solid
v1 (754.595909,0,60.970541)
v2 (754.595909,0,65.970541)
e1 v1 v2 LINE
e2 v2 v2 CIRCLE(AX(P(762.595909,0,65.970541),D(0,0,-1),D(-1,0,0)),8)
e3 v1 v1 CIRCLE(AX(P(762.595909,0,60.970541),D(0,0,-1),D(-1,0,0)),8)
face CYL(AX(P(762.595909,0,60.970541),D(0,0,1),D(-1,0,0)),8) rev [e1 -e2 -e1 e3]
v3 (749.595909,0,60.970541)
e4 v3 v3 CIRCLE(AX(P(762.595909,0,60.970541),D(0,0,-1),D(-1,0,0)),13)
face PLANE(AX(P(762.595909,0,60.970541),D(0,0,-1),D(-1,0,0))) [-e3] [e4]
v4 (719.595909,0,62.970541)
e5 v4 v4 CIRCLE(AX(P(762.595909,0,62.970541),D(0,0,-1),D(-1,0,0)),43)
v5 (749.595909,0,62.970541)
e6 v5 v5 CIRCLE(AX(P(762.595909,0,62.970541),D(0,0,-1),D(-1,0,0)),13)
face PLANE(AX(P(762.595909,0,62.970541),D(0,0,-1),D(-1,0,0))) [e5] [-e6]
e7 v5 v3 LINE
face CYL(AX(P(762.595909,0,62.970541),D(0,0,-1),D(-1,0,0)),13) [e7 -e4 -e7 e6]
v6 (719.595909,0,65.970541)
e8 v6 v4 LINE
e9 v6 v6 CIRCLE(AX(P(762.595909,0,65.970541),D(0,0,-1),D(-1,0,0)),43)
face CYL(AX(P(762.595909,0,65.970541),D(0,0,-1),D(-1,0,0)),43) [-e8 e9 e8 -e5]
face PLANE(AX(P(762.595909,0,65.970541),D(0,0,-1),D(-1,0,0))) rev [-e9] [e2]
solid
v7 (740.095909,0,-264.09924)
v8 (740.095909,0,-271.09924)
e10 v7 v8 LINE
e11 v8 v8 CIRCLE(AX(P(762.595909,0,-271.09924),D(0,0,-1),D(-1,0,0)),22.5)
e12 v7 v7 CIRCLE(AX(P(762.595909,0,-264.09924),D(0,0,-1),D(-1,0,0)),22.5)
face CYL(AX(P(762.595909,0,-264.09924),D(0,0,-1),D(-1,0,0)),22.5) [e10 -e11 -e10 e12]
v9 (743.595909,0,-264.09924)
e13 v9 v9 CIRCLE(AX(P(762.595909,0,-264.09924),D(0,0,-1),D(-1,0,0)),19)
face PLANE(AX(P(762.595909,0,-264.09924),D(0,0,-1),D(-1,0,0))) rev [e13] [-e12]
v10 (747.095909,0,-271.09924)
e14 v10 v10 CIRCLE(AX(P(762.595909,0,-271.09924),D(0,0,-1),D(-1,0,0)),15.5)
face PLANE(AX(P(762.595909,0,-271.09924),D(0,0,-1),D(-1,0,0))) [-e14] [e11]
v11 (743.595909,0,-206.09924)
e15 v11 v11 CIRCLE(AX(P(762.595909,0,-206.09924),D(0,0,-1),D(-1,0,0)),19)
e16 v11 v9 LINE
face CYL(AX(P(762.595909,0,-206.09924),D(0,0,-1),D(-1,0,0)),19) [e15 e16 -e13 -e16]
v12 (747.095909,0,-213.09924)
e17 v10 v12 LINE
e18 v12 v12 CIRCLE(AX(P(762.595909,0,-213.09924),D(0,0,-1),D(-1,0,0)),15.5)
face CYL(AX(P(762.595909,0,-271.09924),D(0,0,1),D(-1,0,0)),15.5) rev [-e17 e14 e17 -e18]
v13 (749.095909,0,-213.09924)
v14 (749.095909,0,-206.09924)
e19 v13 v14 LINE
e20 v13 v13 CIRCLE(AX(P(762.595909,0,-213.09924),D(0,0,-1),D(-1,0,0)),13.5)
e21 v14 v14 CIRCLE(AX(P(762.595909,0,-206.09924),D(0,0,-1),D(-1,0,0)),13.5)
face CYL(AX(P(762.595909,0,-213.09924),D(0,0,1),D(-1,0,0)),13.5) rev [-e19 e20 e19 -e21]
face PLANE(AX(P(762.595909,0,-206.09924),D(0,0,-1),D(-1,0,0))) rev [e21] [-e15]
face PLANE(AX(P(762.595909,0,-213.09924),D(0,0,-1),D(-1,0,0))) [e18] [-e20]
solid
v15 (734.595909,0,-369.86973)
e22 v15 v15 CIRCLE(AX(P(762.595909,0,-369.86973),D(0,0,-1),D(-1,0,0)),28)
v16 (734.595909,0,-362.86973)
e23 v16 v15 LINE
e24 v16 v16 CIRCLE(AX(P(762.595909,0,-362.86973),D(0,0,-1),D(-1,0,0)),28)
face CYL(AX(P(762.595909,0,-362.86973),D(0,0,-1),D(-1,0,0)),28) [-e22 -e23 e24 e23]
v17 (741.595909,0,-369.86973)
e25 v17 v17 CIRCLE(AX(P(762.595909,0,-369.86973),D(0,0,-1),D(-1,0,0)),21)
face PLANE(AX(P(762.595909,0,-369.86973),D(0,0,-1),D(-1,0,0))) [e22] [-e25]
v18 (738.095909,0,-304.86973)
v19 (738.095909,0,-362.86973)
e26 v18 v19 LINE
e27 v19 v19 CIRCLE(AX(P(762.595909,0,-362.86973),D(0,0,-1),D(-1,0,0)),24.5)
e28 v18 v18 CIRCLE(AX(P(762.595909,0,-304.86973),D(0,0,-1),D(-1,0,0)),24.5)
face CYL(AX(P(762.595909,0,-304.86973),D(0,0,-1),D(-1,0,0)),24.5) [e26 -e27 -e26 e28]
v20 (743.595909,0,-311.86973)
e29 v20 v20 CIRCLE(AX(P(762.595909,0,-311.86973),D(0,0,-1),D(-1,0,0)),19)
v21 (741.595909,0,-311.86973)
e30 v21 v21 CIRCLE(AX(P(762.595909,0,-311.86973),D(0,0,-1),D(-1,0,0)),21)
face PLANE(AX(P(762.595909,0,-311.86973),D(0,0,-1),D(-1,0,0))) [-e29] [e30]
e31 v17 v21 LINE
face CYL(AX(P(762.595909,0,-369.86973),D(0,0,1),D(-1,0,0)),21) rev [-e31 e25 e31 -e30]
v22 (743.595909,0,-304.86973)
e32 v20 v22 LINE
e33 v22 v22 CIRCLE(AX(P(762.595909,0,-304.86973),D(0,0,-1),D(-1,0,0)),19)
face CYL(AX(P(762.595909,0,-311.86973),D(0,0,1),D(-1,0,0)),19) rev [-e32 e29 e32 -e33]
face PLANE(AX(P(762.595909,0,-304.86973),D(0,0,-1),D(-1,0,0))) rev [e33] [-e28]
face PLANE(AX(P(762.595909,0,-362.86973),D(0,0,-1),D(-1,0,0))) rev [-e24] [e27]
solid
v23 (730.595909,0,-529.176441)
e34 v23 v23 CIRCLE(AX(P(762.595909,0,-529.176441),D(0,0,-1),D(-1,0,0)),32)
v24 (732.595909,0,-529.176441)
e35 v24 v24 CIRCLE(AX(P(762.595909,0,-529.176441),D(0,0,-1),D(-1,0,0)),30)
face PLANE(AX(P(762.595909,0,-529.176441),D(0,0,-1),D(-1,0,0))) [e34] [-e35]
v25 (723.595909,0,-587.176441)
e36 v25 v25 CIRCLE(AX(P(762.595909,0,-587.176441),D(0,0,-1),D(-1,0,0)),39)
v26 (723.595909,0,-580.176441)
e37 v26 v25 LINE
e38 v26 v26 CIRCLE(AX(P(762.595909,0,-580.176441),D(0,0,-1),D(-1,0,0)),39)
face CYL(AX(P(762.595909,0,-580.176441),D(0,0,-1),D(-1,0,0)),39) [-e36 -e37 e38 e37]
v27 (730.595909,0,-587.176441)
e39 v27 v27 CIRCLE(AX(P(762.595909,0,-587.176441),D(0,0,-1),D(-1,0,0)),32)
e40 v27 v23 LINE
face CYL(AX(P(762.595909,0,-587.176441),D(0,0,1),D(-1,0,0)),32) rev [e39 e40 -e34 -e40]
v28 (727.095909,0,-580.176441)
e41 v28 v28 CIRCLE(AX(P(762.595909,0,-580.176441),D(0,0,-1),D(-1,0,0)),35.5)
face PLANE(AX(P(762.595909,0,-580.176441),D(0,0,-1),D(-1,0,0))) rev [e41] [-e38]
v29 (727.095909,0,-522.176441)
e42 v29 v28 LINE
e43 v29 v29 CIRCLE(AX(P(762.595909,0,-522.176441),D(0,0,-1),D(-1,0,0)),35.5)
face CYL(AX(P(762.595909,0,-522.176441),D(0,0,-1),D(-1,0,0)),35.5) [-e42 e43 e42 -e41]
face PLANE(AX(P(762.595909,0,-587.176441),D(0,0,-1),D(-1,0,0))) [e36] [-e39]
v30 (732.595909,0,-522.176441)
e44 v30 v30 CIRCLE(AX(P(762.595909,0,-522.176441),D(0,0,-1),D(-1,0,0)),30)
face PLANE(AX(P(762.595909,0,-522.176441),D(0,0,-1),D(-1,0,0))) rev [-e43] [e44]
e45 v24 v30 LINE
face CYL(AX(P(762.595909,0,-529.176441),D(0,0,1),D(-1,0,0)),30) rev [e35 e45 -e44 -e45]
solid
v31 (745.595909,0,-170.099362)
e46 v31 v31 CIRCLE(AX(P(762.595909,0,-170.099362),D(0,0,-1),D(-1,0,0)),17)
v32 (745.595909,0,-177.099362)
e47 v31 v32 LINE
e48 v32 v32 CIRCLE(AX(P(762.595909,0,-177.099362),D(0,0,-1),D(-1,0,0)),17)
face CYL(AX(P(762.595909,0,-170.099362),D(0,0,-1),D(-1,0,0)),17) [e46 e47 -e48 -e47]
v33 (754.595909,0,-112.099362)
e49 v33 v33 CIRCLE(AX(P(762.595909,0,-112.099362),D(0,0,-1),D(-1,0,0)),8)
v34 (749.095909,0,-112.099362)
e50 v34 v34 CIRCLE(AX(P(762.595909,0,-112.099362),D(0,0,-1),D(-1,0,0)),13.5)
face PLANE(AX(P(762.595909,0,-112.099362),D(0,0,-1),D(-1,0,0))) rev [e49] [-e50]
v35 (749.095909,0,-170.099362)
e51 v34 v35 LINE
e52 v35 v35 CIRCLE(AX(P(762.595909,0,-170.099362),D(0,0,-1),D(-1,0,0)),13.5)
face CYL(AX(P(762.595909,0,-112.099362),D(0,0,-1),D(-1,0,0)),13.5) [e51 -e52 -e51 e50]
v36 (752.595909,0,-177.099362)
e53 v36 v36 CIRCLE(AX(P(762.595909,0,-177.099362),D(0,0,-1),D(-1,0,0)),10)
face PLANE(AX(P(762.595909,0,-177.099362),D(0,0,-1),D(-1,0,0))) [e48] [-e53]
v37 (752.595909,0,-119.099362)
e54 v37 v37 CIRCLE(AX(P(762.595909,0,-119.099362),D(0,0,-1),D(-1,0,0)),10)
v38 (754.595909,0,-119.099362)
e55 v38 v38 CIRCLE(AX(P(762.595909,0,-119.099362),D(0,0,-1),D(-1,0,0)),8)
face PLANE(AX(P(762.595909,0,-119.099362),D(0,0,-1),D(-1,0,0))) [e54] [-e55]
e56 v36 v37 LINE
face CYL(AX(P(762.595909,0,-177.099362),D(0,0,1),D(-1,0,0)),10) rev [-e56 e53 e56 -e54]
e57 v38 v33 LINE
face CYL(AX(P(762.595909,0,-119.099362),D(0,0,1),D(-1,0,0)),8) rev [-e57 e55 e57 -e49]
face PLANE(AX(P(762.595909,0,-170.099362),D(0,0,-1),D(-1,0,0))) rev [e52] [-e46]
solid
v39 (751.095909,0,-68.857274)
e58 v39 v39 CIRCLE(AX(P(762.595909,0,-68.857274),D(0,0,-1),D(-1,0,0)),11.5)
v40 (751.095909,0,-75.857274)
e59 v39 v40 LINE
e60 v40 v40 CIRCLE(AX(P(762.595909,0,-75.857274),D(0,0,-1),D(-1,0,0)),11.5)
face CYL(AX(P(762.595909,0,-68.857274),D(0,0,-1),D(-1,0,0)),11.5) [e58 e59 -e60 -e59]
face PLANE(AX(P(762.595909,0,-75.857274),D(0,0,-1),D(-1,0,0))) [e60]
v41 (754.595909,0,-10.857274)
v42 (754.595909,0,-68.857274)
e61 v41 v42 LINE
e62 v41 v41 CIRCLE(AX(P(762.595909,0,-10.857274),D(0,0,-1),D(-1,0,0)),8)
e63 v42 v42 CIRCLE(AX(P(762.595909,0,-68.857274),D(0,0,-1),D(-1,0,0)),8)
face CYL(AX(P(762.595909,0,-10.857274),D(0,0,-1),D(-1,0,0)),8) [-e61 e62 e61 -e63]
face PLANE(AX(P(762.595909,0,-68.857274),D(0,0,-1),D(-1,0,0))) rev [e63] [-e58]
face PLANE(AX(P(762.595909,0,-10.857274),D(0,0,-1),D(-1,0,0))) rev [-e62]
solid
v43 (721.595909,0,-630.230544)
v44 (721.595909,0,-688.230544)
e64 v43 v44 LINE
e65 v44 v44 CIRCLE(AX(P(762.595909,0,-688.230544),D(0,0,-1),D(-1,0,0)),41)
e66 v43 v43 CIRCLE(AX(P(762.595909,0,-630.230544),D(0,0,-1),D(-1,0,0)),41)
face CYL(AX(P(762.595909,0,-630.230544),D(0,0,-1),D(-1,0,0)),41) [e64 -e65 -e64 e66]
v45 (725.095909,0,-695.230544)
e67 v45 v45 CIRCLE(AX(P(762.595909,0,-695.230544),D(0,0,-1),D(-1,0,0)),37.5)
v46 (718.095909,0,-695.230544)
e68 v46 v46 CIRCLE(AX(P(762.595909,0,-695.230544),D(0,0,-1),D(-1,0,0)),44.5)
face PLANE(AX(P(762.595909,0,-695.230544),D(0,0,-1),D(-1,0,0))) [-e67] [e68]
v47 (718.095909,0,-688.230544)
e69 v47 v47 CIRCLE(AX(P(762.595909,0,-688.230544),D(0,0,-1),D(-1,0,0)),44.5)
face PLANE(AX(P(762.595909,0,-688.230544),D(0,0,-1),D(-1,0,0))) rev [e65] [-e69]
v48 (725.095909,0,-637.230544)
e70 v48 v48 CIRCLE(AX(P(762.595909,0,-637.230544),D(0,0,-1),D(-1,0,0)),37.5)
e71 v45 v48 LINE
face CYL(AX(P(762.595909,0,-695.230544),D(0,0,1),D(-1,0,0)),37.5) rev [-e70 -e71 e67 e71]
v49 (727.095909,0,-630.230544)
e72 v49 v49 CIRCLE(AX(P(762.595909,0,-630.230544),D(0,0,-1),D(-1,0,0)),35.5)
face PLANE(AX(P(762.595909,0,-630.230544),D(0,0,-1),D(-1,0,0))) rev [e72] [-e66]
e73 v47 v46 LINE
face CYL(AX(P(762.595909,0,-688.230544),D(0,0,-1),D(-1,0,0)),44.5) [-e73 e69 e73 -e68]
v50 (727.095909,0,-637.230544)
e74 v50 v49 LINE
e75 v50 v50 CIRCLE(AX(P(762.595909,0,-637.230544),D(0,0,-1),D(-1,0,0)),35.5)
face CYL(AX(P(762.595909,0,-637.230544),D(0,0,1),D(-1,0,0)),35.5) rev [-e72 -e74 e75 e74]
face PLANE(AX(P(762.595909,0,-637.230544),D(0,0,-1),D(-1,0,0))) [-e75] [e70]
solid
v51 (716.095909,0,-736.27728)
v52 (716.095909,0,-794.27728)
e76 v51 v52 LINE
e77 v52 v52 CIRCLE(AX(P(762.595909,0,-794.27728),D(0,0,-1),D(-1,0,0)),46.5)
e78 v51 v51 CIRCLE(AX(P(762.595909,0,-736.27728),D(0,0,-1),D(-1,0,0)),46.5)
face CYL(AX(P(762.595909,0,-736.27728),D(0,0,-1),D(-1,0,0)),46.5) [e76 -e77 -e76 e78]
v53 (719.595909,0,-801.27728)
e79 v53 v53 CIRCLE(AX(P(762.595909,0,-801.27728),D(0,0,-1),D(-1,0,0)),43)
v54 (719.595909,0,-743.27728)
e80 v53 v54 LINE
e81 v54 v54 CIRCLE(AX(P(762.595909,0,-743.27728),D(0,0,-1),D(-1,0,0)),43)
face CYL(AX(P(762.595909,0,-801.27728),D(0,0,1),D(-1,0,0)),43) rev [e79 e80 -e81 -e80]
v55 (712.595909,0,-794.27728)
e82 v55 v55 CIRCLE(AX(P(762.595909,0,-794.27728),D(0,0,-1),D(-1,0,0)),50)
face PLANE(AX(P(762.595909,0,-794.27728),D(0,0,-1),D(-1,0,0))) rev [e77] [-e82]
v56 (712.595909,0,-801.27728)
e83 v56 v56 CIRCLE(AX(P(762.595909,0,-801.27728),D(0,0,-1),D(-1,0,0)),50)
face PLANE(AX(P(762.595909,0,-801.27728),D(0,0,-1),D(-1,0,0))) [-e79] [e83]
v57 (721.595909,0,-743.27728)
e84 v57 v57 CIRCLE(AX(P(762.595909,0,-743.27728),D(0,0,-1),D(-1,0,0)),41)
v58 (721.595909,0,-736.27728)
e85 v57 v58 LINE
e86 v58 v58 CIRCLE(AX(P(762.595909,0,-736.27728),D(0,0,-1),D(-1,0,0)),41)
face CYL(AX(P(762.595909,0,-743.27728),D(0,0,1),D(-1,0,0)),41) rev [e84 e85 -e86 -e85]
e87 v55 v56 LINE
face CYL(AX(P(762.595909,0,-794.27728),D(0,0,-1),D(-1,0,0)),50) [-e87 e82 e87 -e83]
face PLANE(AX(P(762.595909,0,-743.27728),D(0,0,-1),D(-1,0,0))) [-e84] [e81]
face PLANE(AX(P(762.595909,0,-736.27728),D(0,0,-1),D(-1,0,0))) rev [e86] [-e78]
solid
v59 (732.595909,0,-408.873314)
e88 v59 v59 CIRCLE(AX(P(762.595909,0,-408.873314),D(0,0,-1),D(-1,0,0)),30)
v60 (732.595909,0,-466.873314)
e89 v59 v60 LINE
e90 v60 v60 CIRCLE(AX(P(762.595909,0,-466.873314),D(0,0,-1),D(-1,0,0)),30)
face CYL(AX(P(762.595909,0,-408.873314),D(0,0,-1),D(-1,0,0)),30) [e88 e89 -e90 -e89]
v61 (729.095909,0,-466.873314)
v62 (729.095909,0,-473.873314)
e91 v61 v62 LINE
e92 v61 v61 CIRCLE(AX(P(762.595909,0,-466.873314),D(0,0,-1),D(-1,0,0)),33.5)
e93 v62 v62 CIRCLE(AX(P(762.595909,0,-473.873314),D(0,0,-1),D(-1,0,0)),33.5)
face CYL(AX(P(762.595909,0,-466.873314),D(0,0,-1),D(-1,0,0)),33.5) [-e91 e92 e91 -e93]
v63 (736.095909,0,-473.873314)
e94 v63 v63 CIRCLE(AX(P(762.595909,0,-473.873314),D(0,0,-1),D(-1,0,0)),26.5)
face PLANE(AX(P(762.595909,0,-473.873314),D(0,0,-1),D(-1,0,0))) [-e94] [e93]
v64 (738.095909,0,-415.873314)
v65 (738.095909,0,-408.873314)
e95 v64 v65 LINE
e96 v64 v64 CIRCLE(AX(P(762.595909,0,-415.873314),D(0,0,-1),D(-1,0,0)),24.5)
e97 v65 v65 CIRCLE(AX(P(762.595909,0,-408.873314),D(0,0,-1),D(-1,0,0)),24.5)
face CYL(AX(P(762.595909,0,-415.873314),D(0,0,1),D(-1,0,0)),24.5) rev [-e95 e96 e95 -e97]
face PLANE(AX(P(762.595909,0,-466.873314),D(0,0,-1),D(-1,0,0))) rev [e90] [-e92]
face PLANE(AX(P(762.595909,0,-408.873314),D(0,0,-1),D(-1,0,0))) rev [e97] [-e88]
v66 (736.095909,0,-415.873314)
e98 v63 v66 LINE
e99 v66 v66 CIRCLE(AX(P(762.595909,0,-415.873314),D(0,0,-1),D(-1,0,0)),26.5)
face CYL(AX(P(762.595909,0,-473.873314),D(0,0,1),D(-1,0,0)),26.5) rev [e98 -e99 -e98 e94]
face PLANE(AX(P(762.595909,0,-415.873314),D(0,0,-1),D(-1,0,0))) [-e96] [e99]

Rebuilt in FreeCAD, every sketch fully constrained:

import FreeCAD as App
import Part
import Sketcher

V = App.Vector
Q = App.Units.Quantity


def add_polygon(sketch, points):
    """Adds a closed chain of lines whose ends are joined by coincident constraints."""
    first, n = sketch.GeometryCount, len(points)
    for a, b in zip(points, points[1:] + points[:1]):
        sketch.addGeometry(Part.LineSegment(App.Vector(*a, 0), App.Vector(*b, 0)), False)
    for i in range(n):
        sketch.addConstraint(Sketcher.Constraint("Coincident", first + i, 2, first + (i + 1) % n, 1))

doc = App.newDocument("Part")
body = doc.addObject("PartDesign::Body", "Body")
body.AllowCompound = True

# Sketch on XZ plane
sketch1 = body.newObject("Sketcher::SketchObject", "Sketch")
sketch1.AttachmentSupport = (doc.getObject("XZ_Plane"), [""])
sketch1.MapMode = "FlatFace"
add_polygon(sketch1, [(749.6, 61), (754.6, 61), (754.6, 66), (719.6, 66), (719.6, 63), (749.6, 63)])  # lines 0-5
add_polygon(sketch1, [(762.6, -75.9), (762.6, -10.9), (754.6, -10.9), (754.6, -68.9), (751.1, -68.9), (751.1, -75.9)])  # lines 6-11
add_polygon(sketch1, [(754.6, -119.1), (754.6, -112.1), (749.1, -112.1), (749.1, -170.1), (745.6, -170.1), (745.6, -177.1), (752.6, -177.1), (752.6, -119.1)])  # lines 12-19
add_polygon(sketch1, [(749.1, -213.1), (749.1, -206.1), (743.6, -206.1), (743.6, -264.1), (740.1, -264.1), (740.1, -271.1), (747.1, -271.1), (747.1, -213.1)])  # lines 20-27
add_polygon(sketch1, [(743.6, -311.9), (743.6, -304.9), (738.1, -304.9), (738.1, -362.9), (734.6, -362.9), (734.6, -369.9), (741.6, -369.9), (741.6, -311.9)])  # lines 28-35
add_polygon(sketch1, [(738.1, -415.9), (738.1, -408.9), (732.6, -408.9), (732.6, -466.9), (729.1, -466.9), (729.1, -473.9), (736.1, -473.9), (736.1, -415.9)])  # lines 36-43
add_polygon(sketch1, [(732.6, -529.2), (732.6, -522.2), (727.1, -522.2), (727.1, -580.2), (723.6, -580.2), (723.6, -587.2), (730.6, -587.2), (730.6, -529.2)])  # lines 44-51
add_polygon(sketch1, [(727.1, -637.2), (727.1, -630.2), (721.6, -630.2), (721.6, -688.2), (718.1, -688.2), (718.1, -695.2), (725.1, -695.2), (725.1, -637.2)])  # lines 52-59
add_polygon(sketch1, [(721.6, -743.3), (721.6, -736.3), (716.1, -736.3), (716.1, -794.3), (712.6, -794.3), (712.6, -801.3), (719.6, -801.3), (719.6, -743.3)])  # lines 60-67
sketch1.addGeometry(Part.LineSegment(V(762.6, 66, 0), V(762.6, -801.3, 0)), True)  # axis
sketch1.addConstraint([
    Sketcher.Constraint("Horizontal", 0),
    Sketcher.Constraint("Vertical", 1),
    Sketcher.Constraint("Horizontal", 2),
    Sketcher.Constraint("Vertical", 3),
    Sketcher.Constraint("Horizontal", 4),
    Sketcher.Constraint("Vertical", 5),
    Sketcher.Constraint("Vertical", 6),
    Sketcher.Constraint("Horizontal", 7),
    Sketcher.Constraint("Vertical", 8),
    Sketcher.Constraint("Horizontal", 9),
    Sketcher.Constraint("Vertical", 10),
    Sketcher.Constraint("Horizontal", 11),
    Sketcher.Constraint("Vertical", 12),
    Sketcher.Constraint("Horizontal", 13),
    Sketcher.Constraint("Vertical", 14),
    Sketcher.Constraint("Horizontal", 15),
    Sketcher.Constraint("Vertical", 16),
    Sketcher.Constraint("Horizontal", 17),
    Sketcher.Constraint("Vertical", 18),
    Sketcher.Constraint("Horizontal", 19),
    Sketcher.Constraint("Vertical", 20),
    Sketcher.Constraint("Horizontal", 21),
    Sketcher.Constraint("Vertical", 22),
    Sketcher.Constraint("Horizontal", 23),
    Sketcher.Constraint("Vertical", 24),
    Sketcher.Constraint("Horizontal", 25),
    Sketcher.Constraint("Vertical", 26),
    Sketcher.Constraint("Horizontal", 27),
    Sketcher.Constraint("Vertical", 28),
    Sketcher.Constraint("Horizontal", 29),
    Sketcher.Constraint("Vertical", 30),
    Sketcher.Constraint("Horizontal", 31),
    Sketcher.Constraint("Vertical", 32),
    Sketcher.Constraint("Horizontal", 33),
    Sketcher.Constraint("Vertical", 34),
    Sketcher.Constraint("Horizontal", 35),
    Sketcher.Constraint("Vertical", 36),
    Sketcher.Constraint("Horizontal", 37),
    Sketcher.Constraint("Vertical", 38),
    Sketcher.Constraint("Horizontal", 39),
    Sketcher.Constraint("Vertical", 40),
    Sketcher.Constraint("Horizontal", 41),
    Sketcher.Constraint("Vertical", 42),
    Sketcher.Constraint("Horizontal", 43),
    Sketcher.Constraint("Vertical", 44),
    Sketcher.Constraint("Horizontal", 45),
    Sketcher.Constraint("Vertical", 46),
    Sketcher.Constraint("Horizontal", 47),
    Sketcher.Constraint("Vertical", 48),
    Sketcher.Constraint("Horizontal", 49),
    Sketcher.Constraint("Vertical", 50),
    Sketcher.Constraint("Horizontal", 51),
    Sketcher.Constraint("Vertical", 52),
    Sketcher.Constraint("Horizontal", 53),
    Sketcher.Constraint("Vertical", 54),
    Sketcher.Constraint("Horizontal", 55),
    Sketcher.Constraint("Vertical", 56),
    Sketcher.Constraint("Horizontal", 57),
    Sketcher.Constraint("Vertical", 58),
    Sketcher.Constraint("Horizontal", 59),
    Sketcher.Constraint("Vertical", 60),
    Sketcher.Constraint("Horizontal", 61),
    Sketcher.Constraint("Vertical", 62),
    Sketcher.Constraint("Horizontal", 63),
    Sketcher.Constraint("Vertical", 64),
    Sketcher.Constraint("Horizontal", 65),
    Sketcher.Constraint("Vertical", 66),
    Sketcher.Constraint("Horizontal", 67),
    Sketcher.Constraint("Vertical", 68),
    Sketcher.Constraint("Horizontal", 2, 2, 68, 1),
    Sketcher.Constraint("Horizontal", 65, 2, 68, 2),
    Sketcher.Constraint("Vertical", 1, 2, 7, 2),
    Sketcher.Constraint("Vertical", 8, 2, 12, 2),
    Sketcher.Constraint("Vertical", 14, 2, 20, 2),
    Sketcher.Constraint("Vertical", 22, 2, 28, 2),
    Sketcher.Constraint("Vertical", 30, 2, 36, 2),
    Sketcher.Constraint("Vertical", 38, 2, 44, 2),
    Sketcher.Constraint("Vertical", 46, 2, 52, 2),
    Sketcher.Constraint("Vertical", 54, 2, 60, 2),
    Sketcher.Constraint("Vertical", 3, 2, 65, 2),
    Sketcher.Constraint("Vertical", 11, 2, 68, 1),
    Sketcher.Constraint("Equal", 9, 15),
    Sketcher.Constraint("Equal", 13, 21),
    Sketcher.Constraint("Equal", 15, 23),
    Sketcher.Constraint("Equal", 17, 25),
    Sketcher.Constraint("Equal", 21, 29),
    Sketcher.Constraint("Equal", 23, 31),
    Sketcher.Constraint("Equal", 25, 33),
    Sketcher.Constraint("Equal", 29, 37),
    Sketcher.Constraint("Equal", 31, 39),
    Sketcher.Constraint("Equal", 33, 41),
    Sketcher.Constraint("Equal", 37, 45),
    Sketcher.Constraint("Equal", 39, 47),
    Sketcher.Constraint("Equal", 41, 49),
    Sketcher.Constraint("Equal", 45, 53),
    Sketcher.Constraint("Equal", 47, 55),
    Sketcher.Constraint("Equal", 49, 57),
    Sketcher.Constraint("Equal", 53, 61),
    Sketcher.Constraint("Equal", 55, 63),
    Sketcher.Constraint("Equal", 57, 65),
    Sketcher.Constraint("Equal", 0, 1),
    Sketcher.Constraint("Equal", 67, 5),
    Sketcher.Constraint("Equal", 65, 10),
    Sketcher.Constraint("Equal", 10, 12),
    Sketcher.Constraint("Equal", 8, 14),
    Sketcher.Constraint("Equal", 12, 16),
    Sketcher.Constraint("Equal", 16, 20),
    Sketcher.Constraint("Equal", 18, 22),
    Sketcher.Constraint("Equal", 20, 24),
    Sketcher.Constraint("Equal", 24, 28),
    Sketcher.Constraint("Equal", 26, 30),
    Sketcher.Constraint("Equal", 28, 32),
    Sketcher.Constraint("Equal", 32, 36),
    Sketcher.Constraint("Equal", 34, 38),
    Sketcher.Constraint("Equal", 36, 40),
    Sketcher.Constraint("Equal", 40, 44),
    Sketcher.Constraint("Equal", 42, 46),
    Sketcher.Constraint("Equal", 44, 48),
    Sketcher.Constraint("Equal", 48, 52),
    Sketcher.Constraint("Equal", 50, 54),
    Sketcher.Constraint("Equal", 52, 56),
    Sketcher.Constraint("Equal", 56, 60),
    Sketcher.Constraint("Equal", 58, 62),
    Sketcher.Constraint("Equal", 60, 64),
    Sketcher.Constraint("DistanceX", 0, 1, 0, 2, Q("5 mm")),
    Sketcher.Constraint("DistanceX", 2, 2, 2, 1, Q("35 mm")),
    Sketcher.Constraint("DistanceX", 7, 2, 7, 1, Q("8 mm")),
    Sketcher.Constraint("DistanceX", 17, 1, 17, 2, Q("7 mm")),
    Sketcher.Constraint("DistanceX", 19, 1, 19, 2, Q("2 mm")),
    Sketcher.Constraint("DistanceY", 6, 1, 6, 2, Q("65 mm")),
    Sketcher.Constraint("DistanceY", 68, 2, 68, 1, Q("867.247821 mm")),
    Sketcher.Constraint("DistanceX", -1, 1, 0, 2, Q("754.595909 mm")),
    Sketcher.Constraint("DistanceY", -1, 1, 0, 2, Q("60.970541 mm")),
    Sketcher.Constraint("DistanceY", 12, 2, -1, 1, Q("112.099362 mm")),
    Sketcher.Constraint("DistanceY", 20, 2, -1, 1, Q("206.09924 mm")),
    Sketcher.Constraint("DistanceY", 28, 2, -1, 1, Q("304.86973 mm")),
    Sketcher.Constraint("DistanceY", 44, 2, -1, 1, Q("522.176441 mm")),
    Sketcher.Constraint("DistanceY", 6, 2, -1, 1, Q("10.857274 mm")),
    Sketcher.Constraint("DistanceY", 36, 2, -1, 1, Q("408.873314 mm")),
    Sketcher.Constraint("DistanceY", 52, 2, -1, 1, Q("630.230544 mm")),
])
revolution = body.newObject("PartDesign::Revolution", "Revolution")
revolution.Profile = sketch1
revolution.ReferenceAxis = (sketch1, ["Axis0"])
revolution.Angle = 360

doc.recompute()
